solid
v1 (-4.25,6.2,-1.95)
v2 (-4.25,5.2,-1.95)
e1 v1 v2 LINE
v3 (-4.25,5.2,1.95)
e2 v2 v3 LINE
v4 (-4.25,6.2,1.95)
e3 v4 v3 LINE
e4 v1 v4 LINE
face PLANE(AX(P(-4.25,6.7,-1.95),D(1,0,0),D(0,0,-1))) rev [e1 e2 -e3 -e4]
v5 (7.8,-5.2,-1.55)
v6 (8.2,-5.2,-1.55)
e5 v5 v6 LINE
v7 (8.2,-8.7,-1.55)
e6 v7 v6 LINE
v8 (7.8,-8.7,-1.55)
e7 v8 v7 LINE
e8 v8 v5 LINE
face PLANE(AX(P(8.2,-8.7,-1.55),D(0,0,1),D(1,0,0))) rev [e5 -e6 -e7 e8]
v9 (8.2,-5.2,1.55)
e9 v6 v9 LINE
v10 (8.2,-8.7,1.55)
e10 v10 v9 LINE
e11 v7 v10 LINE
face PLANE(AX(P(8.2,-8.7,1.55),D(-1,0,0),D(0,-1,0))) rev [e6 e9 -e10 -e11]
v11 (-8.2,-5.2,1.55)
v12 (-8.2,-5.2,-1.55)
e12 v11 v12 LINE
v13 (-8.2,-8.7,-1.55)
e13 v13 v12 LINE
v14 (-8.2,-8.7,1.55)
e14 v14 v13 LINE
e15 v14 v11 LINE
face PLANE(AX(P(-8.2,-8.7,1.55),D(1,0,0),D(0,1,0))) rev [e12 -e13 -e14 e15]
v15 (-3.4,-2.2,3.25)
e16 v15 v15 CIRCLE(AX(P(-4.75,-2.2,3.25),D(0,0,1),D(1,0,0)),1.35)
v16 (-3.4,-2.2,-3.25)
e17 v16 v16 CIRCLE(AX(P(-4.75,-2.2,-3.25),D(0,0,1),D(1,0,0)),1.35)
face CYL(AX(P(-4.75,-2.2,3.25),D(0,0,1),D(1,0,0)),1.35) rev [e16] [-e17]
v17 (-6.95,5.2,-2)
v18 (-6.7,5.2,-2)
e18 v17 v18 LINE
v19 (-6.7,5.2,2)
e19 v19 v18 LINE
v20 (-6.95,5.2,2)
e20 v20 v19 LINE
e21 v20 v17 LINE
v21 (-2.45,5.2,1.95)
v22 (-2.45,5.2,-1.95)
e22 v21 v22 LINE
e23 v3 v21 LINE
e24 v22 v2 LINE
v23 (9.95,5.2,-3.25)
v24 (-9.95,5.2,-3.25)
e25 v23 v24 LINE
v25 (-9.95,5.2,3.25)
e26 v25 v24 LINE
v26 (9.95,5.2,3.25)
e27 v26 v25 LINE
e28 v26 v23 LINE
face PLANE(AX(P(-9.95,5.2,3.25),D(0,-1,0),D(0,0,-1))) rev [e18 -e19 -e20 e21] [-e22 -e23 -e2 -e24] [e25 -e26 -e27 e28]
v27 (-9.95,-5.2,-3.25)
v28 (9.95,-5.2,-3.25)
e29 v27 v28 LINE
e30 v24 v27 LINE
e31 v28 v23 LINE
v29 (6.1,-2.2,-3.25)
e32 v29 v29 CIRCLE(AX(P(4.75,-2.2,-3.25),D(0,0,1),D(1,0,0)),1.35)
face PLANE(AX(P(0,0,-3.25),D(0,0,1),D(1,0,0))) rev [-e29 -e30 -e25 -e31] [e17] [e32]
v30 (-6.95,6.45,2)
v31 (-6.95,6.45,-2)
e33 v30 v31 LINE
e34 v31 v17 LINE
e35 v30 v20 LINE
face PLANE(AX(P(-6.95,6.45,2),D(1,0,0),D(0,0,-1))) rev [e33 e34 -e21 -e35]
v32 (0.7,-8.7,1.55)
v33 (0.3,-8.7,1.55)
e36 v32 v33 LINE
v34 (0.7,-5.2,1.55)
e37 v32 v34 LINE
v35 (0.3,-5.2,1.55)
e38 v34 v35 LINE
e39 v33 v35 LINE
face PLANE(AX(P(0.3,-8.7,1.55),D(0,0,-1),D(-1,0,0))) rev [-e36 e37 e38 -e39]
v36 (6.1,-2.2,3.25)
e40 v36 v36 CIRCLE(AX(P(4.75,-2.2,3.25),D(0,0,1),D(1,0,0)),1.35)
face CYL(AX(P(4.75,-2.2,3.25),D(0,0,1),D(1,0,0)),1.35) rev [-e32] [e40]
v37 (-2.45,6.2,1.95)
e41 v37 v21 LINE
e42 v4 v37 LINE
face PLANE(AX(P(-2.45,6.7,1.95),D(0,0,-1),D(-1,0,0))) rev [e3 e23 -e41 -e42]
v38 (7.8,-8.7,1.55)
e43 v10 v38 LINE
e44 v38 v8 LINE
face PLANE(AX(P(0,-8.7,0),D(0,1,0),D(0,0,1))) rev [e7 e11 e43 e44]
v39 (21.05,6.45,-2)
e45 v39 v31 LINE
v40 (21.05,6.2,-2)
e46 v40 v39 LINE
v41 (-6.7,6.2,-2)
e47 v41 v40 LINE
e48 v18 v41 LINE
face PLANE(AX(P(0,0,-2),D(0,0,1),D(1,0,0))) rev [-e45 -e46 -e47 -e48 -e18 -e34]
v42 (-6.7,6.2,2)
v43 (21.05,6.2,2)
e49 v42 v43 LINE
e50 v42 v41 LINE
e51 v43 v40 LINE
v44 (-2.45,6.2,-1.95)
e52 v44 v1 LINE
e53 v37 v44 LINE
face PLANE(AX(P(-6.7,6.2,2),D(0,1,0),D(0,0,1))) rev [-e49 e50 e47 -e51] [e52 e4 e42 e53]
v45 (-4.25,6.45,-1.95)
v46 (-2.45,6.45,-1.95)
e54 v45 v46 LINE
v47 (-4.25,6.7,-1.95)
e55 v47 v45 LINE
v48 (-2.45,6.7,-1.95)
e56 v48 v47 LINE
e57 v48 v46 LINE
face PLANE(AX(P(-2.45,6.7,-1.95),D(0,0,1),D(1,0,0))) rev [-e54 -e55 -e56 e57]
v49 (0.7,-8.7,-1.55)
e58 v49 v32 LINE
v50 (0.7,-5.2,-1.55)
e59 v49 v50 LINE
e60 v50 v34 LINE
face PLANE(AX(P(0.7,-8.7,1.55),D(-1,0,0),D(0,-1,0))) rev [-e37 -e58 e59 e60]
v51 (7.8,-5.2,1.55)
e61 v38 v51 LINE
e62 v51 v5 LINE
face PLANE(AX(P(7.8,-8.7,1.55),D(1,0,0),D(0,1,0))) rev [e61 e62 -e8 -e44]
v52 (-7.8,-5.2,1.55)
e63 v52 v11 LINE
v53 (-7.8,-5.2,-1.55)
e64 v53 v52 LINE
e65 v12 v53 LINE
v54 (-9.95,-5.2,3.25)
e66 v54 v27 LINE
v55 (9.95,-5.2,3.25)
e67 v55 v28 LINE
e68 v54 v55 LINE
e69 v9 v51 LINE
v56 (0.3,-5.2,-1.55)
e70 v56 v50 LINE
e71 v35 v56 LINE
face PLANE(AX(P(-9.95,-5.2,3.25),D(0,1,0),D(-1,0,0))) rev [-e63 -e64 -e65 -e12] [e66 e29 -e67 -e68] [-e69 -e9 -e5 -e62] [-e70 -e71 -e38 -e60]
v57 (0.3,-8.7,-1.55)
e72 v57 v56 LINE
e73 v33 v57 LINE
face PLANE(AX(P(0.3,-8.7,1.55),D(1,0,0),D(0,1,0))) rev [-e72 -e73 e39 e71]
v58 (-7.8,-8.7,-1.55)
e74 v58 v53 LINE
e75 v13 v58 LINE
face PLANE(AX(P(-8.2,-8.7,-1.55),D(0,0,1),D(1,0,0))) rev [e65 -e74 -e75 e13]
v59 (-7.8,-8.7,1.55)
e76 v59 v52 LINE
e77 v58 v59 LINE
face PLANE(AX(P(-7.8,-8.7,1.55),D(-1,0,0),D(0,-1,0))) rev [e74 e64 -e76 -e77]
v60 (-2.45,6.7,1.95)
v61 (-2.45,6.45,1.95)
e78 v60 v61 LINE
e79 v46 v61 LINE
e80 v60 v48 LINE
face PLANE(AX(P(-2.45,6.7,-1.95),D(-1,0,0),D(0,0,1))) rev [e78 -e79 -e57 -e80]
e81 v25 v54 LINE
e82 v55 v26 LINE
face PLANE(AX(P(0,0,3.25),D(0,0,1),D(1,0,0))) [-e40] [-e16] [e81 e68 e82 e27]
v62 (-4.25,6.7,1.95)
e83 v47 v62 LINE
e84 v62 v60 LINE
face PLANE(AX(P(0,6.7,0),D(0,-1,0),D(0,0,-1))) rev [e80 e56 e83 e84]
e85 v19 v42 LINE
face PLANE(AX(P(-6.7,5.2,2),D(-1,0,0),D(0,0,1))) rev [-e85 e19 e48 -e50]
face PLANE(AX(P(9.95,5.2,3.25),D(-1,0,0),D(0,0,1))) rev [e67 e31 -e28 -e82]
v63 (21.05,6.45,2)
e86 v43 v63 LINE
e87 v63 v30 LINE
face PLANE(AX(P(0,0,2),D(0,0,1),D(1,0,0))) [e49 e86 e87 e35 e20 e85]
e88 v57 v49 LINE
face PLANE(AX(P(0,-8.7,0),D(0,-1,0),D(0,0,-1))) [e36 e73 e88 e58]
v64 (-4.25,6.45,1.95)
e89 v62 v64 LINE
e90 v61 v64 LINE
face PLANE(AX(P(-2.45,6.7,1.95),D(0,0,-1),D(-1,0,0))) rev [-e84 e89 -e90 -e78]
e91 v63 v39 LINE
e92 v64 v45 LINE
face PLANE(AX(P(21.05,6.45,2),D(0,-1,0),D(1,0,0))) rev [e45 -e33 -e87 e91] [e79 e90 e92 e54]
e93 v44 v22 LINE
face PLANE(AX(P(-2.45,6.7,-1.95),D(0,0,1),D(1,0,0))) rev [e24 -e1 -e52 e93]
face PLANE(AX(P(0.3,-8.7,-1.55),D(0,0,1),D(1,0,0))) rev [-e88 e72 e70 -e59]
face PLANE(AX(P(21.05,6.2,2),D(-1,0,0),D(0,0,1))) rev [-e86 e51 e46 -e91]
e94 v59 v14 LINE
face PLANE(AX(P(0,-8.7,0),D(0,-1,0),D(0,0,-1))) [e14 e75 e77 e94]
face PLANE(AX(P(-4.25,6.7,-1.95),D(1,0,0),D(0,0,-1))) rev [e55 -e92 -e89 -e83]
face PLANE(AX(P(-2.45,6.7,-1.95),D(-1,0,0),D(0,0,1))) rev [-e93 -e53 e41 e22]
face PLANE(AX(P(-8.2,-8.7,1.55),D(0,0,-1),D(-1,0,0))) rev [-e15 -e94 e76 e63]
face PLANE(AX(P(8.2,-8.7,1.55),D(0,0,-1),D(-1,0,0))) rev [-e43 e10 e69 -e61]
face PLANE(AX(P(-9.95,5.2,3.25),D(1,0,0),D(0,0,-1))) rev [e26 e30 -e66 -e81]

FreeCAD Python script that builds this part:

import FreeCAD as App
import Part
import Sketcher
from FreeCAD import Vector

doc = App.newDocument("Part")
params = doc.addObject("Spreadsheet::Sheet", "Params")
for row, (alias, value) in enumerate([
    ("sketch1_width", "19.9 mm"),
    ("sketch1_height", "10.4 mm"),
    ("pad1_length", "6.5 mm"),
    ("sketch2_diameter", "2.7 mm"),
    ("hole_diameter", "2.7 mm"),
    ("sketch3_width", "0.4 mm"),
    ("sketch3_height", "3.1 mm"),
    ("pad2_length", "3.5 mm"),
    ("sketch4_width", "1.8 mm"),
    ("sketch4_height", "3.9 mm"),
    ("pad3_length", "1.5 mm"),
    ("sketch5_width", "28 mm"),
    ("sketch5_height", "1 mm"),
    ("sketch5_width2", "27.75 mm"),
    ("pad4_length", "4 mm"),
], start=1):
    params.set(f"A{row}", alias)
    params.set(f"B{row}", "=" + value)
    params.setAlias(f"B{row}", alias)

body = doc.addObject("PartDesign::Body", "Body")

# Sketch on XY plane
sketch1 = doc.addObject("Sketcher::SketchObject", "Sketch")
body.addObject(sketch1)
sketch1.AttachmentSupport = (doc.XY_Plane, [""])
sketch1.MapMode = "FlatFace"
sketch1.addGeometry([
    Part.LineSegment(Vector(-10, 5, 0), Vector(-10, -5, 0)),
    Part.LineSegment(Vector(-10, -5, 0), Vector(10, -5, 0)),
    Part.LineSegment(Vector(10, -5, 0), Vector(10, 5, 0)),
    Part.LineSegment(Vector(10, 5, 0), Vector(-10, 5, 0)),
], False)
sketch1.addConstraint([
    Sketcher.Constraint("Coincident", 0, 2, 1, 1),
    Sketcher.Constraint("Coincident", 1, 2, 2, 1),
    Sketcher.Constraint("Coincident", 2, 2, 3, 1),
    Sketcher.Constraint("Coincident", 3, 2, 0, 1),
    Sketcher.Constraint("Vertical", 0),
    Sketcher.Constraint("Horizontal", 1),
    Sketcher.Constraint("Vertical", 2),
    Sketcher.Constraint("Horizontal", 3),
    Sketcher.Constraint("Symmetric", 0, 2, 2, 2, -1, 1),
    Sketcher.Constraint("DistanceX", 1, 1, 1, 2, 19.9),
    Sketcher.Constraint("DistanceY", 0, 2, 0, 1, 10.4),
])
sketch1.setExpression("Constraints[9]", "Params.sketch1_width")
sketch1.setExpression("Constraints[10]", "Params.sketch1_height")
pad1 = doc.addObject("PartDesign::Pad", "Pad")
body.addObject(pad1)
pad1.Profile = sketch1
pad1.setExpression("Length", "Params.pad1_length")
pad1.Midplane = True

# Sketch on XY plane
sketch2 = doc.addObject("Sketcher::SketchObject", "Sketch001")
body.addObject(sketch2)
sketch2.AttachmentSupport = (doc.XY_Plane, [""])
sketch2.MapMode = "FlatFace"
sketch2.AttachmentOffset = App.Placement(Vector(0, 0, 3.25), App.Rotation())
sketch2.addGeometry([
    Part.Circle(Vector(-4.8, -2.2, 0), Vector(0, 0, 1), 1.4),
    Part.Circle(Vector(4.8, -2.2, 0), Vector(0, 0, 1), 1.4),
], False)
sketch2.addConstraint([
    Sketcher.Constraint("Equal", 0, 1),
    Sketcher.Constraint("Symmetric", 0, 3, 1, 3, -2),
    Sketcher.Constraint("Diameter", 0, 2.7),
    Sketcher.Constraint("DistanceY", 0, 3, -1, 1, 2.2),
    Sketcher.Constraint("DistanceX", 0, 3, 1, 3, 9.5),
])
sketch2.setExpression("Constraints[2]", "Params.sketch2_diameter")
doc.recompute()
hole = doc.addObject("PartDesign::Hole", "Hole")
body.addObject(hole)
hole.Profile = sketch2
hole.ThreadType = "None"
hole.setExpression("Diameter", "Params.hole_diameter")
hole.DepthType = "ThroughAll"

# Sketch on XZ plane
sketch3 = doc.addObject("Sketcher::SketchObject", "Sketch002")
body.addObject(sketch3)
sketch3.AttachmentSupport = (doc.XZ_Plane, [""])
sketch3.MapMode = "FlatFace"
sketch3.AttachmentOffset = App.Placement(Vector(0, 0, 5.2), App.Rotation())
sketch3.addGeometry([
    Part.LineSegment(Vector(0.3, 1.55, 0), Vector(0.3, -1.55, 0)),  # 0
    Part.LineSegment(Vector(0.3, -1.55, 0), Vector(0.7, -1.55, 0)),  # 1
    Part.LineSegment(Vector(0.7, -1.55, 0), Vector(0.7, 1.55, 0)),  # 2
    Part.LineSegment(Vector(0.7, 1.55, 0), Vector(0.3, 1.55, 0)),  # 3
    Part.LineSegment(Vector(7.8, 1.55, 0), Vector(7.8, -1.55, 0)),  # 4
    Part.LineSegment(Vector(7.8, -1.55, 0), Vector(8.2, -1.55, 0)),  # 5
    Part.LineSegment(Vector(8.2, -1.55, 0), Vector(8.2, 1.55, 0)),  # 6
    Part.LineSegment(Vector(8.2, 1.55, 0), Vector(7.8, 1.55, 0)),  # 7
    Part.LineSegment(Vector(-8.2, 1.55, 0), Vector(-8.2, -1.55, 0)),  # 8
    Part.LineSegment(Vector(-8.2, -1.55, 0), Vector(-7.8, -1.55, 0)),  # 9
    Part.LineSegment(Vector(-7.8, -1.55, 0), Vector(-7.8, 1.55, 0)),  # 10
    Part.LineSegment(Vector(-7.8, 1.55, 0), Vector(-8.2, 1.55, 0)),  # 11
], False)
sketch3.addConstraint([
    Sketcher.Constraint("Coincident", 0, 2, 1, 1),
    Sketcher.Constraint("Coincident", 1, 2, 2, 1),
    Sketcher.Constraint("Coincident", 2, 2, 3, 1),
    Sketcher.Constraint("Coincident", 3, 2, 0, 1),
    Sketcher.Constraint("Coincident", 4, 2, 5, 1),
    Sketcher.Constraint("Coincident", 5, 2, 6, 1),
    Sketcher.Constraint("Coincident", 6, 2, 7, 1),
    Sketcher.Constraint("Coincident", 7, 2, 4, 1),
    Sketcher.Constraint("Coincident", 8, 2, 9, 1),
    Sketcher.Constraint("Coincident", 9, 2, 10, 1),
    Sketcher.Constraint("Coincident", 10, 2, 11, 1),
    Sketcher.Constraint("Coincident", 11, 2, 8, 1),
    Sketcher.Constraint("Vertical", 0),
    Sketcher.Constraint("Horizontal", 1),
    Sketcher.Constraint("Vertical", 2),
    Sketcher.Constraint("Horizontal", 3),
    Sketcher.Constraint("Vertical", 4),
    Sketcher.Constraint("Horizontal", 5),
    Sketcher.Constraint("Vertical", 6),
    Sketcher.Constraint("Horizontal", 7),
    Sketcher.Constraint("Vertical", 8),
    Sketcher.Constraint("Horizontal", 9),
    Sketcher.Constraint("Vertical", 10),
    Sketcher.Constraint("Horizontal", 11),
    Sketcher.Constraint("Symmetric", 6, 2, 8, 2, -1, 1),
    Sketcher.Constraint("Symmetric", 4, 2, 10, 2, -1, 1),
    Sketcher.Constraint("Horizontal", 1, 2, 4, 2),
    Sketcher.Constraint("Horizontal", 3, 2, 6, 2),
    Sketcher.Constraint("Horizontal", 5, 2, 8, 2),
    Sketcher.Constraint("Equal", 3, 5),
    Sketcher.Constraint("DistanceX", 1, 1, 1, 2, 0.4),
    Sketcher.Constraint("DistanceY", 0, 2, 0, 1, 3.1),
    Sketcher.Constraint("DistanceX", 8, 2, 4, 2, 16.0),
    Sketcher.Constraint("DistanceX", -1, 1, 0, 2, 0.3),
])
sketch3.setExpression("Constraints[30]", "Params.sketch3_width")
sketch3.setExpression("Constraints[31]", "Params.sketch3_height")
pad2 = doc.addObject("PartDesign::Pad", "Pad001")
body.addObject(pad2)
pad2.Profile = sketch3
pad2.setExpression("Length", "Params.pad2_length")

# Sketch on XZ plane
sketch4 = doc.addObject("Sketcher::SketchObject", "Sketch003")
body.addObject(sketch4)
sketch4.AttachmentSupport = (doc.XZ_Plane, [""])
sketch4.MapMode = "FlatFace"
sketch4.AttachmentOffset = App.Placement(Vector(0, 0, -5.2), App.Rotation())
sketch4.addGeometry([
    Part.LineSegment(Vector(-4.2, -1.9, 0), Vector(-4.2, 1.9, 0)),
    Part.LineSegment(Vector(-4.2, 1.9, 0), Vector(-2.5, 1.9, 0)),
    Part.LineSegment(Vector(-2.5, 1.9, 0), Vector(-2.5, -1.9, 0)),
    Part.LineSegment(Vector(-2.5, -1.9, 0), Vector(-4.2, -1.9, 0)),
], False)
sketch4.addConstraint([
    Sketcher.Constraint("Coincident", 0, 2, 1, 1),
    Sketcher.Constraint("Coincident", 1, 2, 2, 1),
    Sketcher.Constraint("Coincident", 2, 2, 3, 1),
    Sketcher.Constraint("Coincident", 3, 2, 0, 1),
    Sketcher.Constraint("Vertical", 0),
    Sketcher.Constraint("Horizontal", 1),
    Sketcher.Constraint("Vertical", 2),
    Sketcher.Constraint("Horizontal", 3),
    Sketcher.Constraint("DistanceX", 1, 1, 1, 2, 1.8),
    Sketcher.Constraint("DistanceY", 0, 1, 0, 2, 3.9),
    Sketcher.Constraint("DistanceX", 0, 2, -1, 1, 4.25),
    Sketcher.Constraint("DistanceY", -1, 1, 0, 2, 1.95),
])
sketch4.setExpression("Constraints[8]", "Params.sketch4_width")
sketch4.setExpression("Constraints[9]", "Params.sketch4_height")
pad3 = doc.addObject("PartDesign::Pad", "Pad002")
body.addObject(pad3)
pad3.Profile = sketch4
pad3.setExpression("Length", "Params.pad3_length")
pad3.Reversed = True

# Sketch on XY plane
sketch5 = doc.addObject("Sketcher::SketchObject", "Sketch004")
body.addObject(sketch5)
sketch5.AttachmentSupport = (doc.XY_Plane, [""])
sketch5.MapMode = "FlatFace"
sketch5.addGeometry([
    Part.LineSegment(Vector(-6.7, 5.2, 0), Vector(-6.7, 6.2, 0)),  # 0
    Part.LineSegment(Vector(-6.7, 6.2, 0), Vector(21.05, 6.2, 0)),  # 1
    Part.LineSegment(Vector(21.05, 6.2, 0), Vector(21.05, 6.45, 0)),  # 2
    Part.LineSegment(Vector(21.05, 6.45, 0), Vector(-6.95, 6.45, 0)),  # 3
    Part.LineSegment(Vector(-6.95, 6.45, 0), Vector(-6.95, 5.2, 0)),  # 4
    Part.LineSegment(Vector(-6.95, 5.2, 0), Vector(-6.7, 5.2, 0)),  # 5
], False)
sketch5.addConstraint([
    Sketcher.Constraint("Coincident", 0, 2, 1, 1),
    Sketcher.Constraint("Coincident", 1, 2, 2, 1),
    Sketcher.Constraint("Coincident", 2, 2, 3, 1),
    Sketcher.Constraint("Coincident", 3, 2, 4, 1),
    Sketcher.Constraint("Coincident", 4, 2, 5, 1),
    Sketcher.Constraint("Coincident", 5, 2, 0, 1),
    Sketcher.Constraint("Vertical", 0),
    Sketcher.Constraint("Horizontal", 1),
    Sketcher.Constraint("Vertical", 2),
    Sketcher.Constraint("Horizontal", 3),
    Sketcher.Constraint("Vertical", 4),
    Sketcher.Constraint("Horizontal", 5),
    Sketcher.Constraint("Equal", 5, 2),
    Sketcher.Constraint("DistanceX", 3, 2, 3, 1, 28.0),
    Sketcher.Constraint("DistanceY", 0, 1, 0, 2, 1.0),
    Sketcher.Constraint("DistanceX", 1, 1, 1, 2, 27.75),
    Sketcher.Constraint("DistanceX", 0, 2, -1, 1, 6.7),
    Sketcher.Constraint("DistanceY", -1, 1, 0, 2, 6.2),
])
sketch5.setExpression("Constraints[13]", "Params.sketch5_width")
sketch5.setExpression("Constraints[14]", "Params.sketch5_height")
sketch5.setExpression("Constraints[15]", "Params.sketch5_width2")
pad4 = doc.addObject("PartDesign::Pad", "Pad003")
body.addObject(pad4)
pad4.Profile = sketch5
pad4.setExpression("Length", "Params.pad4_length")
pad4.Midplane = True

doc.recompute()
